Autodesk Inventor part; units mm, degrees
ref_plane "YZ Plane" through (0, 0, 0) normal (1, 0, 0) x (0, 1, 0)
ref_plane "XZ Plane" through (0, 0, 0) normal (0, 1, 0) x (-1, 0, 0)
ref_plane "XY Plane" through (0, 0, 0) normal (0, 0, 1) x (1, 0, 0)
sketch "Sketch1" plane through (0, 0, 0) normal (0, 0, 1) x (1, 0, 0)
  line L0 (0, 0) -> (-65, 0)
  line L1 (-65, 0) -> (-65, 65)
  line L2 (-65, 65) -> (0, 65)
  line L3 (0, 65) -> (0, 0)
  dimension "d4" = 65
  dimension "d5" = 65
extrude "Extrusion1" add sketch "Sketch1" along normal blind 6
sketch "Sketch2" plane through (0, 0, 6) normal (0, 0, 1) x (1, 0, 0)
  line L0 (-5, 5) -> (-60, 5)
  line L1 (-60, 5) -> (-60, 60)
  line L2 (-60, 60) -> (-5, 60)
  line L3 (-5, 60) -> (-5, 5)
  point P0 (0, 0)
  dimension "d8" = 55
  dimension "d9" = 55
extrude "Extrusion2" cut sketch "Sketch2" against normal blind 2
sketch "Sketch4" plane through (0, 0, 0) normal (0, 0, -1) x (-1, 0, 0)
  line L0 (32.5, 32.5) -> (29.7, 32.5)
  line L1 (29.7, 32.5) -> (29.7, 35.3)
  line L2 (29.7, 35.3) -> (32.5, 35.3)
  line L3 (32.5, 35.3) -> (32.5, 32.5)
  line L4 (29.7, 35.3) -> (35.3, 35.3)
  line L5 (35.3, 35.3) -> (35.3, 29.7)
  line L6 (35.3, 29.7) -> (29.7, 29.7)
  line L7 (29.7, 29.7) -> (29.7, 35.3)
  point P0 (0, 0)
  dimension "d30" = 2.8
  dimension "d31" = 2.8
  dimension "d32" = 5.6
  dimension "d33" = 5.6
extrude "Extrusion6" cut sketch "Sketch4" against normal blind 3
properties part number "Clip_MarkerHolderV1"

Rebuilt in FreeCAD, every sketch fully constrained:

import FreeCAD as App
import Part
import Sketcher
Q = App.Units.Quantity

doc = App.newDocument("Part")
body = doc.addObject("PartDesign::Body", "Body")

# Sketch on XY plane
sketch1 = body.newObject("Sketcher::SketchObject", "Sketch")
sketch1.AttachmentSupport = (doc.getObject("XY_Plane"), [""])
sketch1.MapMode = "FlatFace"
sketch1.addGeometry([
    Part.LineSegment(App.Vector(-65, 0, 0), App.Vector(0, 0, 0)),
    Part.LineSegment(App.Vector(0, 0, 0), App.Vector(0, 65, 0)),
    Part.LineSegment(App.Vector(0, 65, 0), App.Vector(-65, 65, 0)),
    Part.LineSegment(App.Vector(-65, 65, 0), App.Vector(-65, 0, 0)),
], False)
sketch1.addConstraint([
    Sketcher.Constraint("Coincident", 0, 2, 1, 1),
    Sketcher.Constraint("Coincident", 1, 2, 2, 1),
    Sketcher.Constraint("Coincident", 2, 2, 3, 1),
    Sketcher.Constraint("Coincident", 3, 2, 0, 1),
    Sketcher.Constraint("Horizontal", 0),
    Sketcher.Constraint("Vertical", 1),
    Sketcher.Constraint("Horizontal", 2),
    Sketcher.Constraint("Vertical", 3),
    Sketcher.Constraint("Coincident", 0, 2, -1, 1),
    Sketcher.Constraint("Equal", 2, 1),
    Sketcher.Constraint("DistanceX", 0, 1, 0, 2, Q("65 mm")),
])
pad1 = body.newObject("PartDesign::Pad", "Pad")
pad1.Profile = sketch1
pad1.Length = 6

# Sketch on XY plane
sketch2 = body.newObject("Sketcher::SketchObject", "Sketch001")
sketch2.AttachmentSupport = (doc.getObject("XY_Plane"), [""])
sketch2.MapMode = "FlatFace"
sketch2.AttachmentOffset = App.Placement(App.Vector(0, 0, 6), App.Rotation())
sketch2.addGeometry([
    Part.LineSegment(App.Vector(-60, 5, 0), App.Vector(-5, 5, 0)),
    Part.LineSegment(App.Vector(-5, 5, 0), App.Vector(-5, 60, 0)),
    Part.LineSegment(App.Vector(-5, 60, 0), App.Vector(-60, 60, 0)),
    Part.LineSegment(App.Vector(-60, 60, 0), App.Vector(-60, 5, 0)),
], False)
sketch2.addConstraint([
    Sketcher.Constraint("Coincident", 0, 2, 1, 1),
    Sketcher.Constraint("Coincident", 1, 2, 2, 1),
    Sketcher.Constraint("Coincident", 2, 2, 3, 1),
    Sketcher.Constraint("Coincident", 3, 2, 0, 1),
    Sketcher.Constraint("Horizontal", 0),
    Sketcher.Constraint("Vertical", 1),
    Sketcher.Constraint("Horizontal", 2),
    Sketcher.Constraint("Vertical", 3),
    Sketcher.Constraint("Equal", 2, 1),
    Sketcher.Constraint("DistanceX", 0, 1, 0, 2, Q("55 mm")),
    Sketcher.Constraint("DistanceX", 0, 2, -1, 1, Q("5 mm")),
    Sketcher.Constraint("DistanceY", -1, 1, 0, 2, Q("5 mm")),
])
pocket1 = body.newObject("PartDesign::Pocket", "Pocket")
pocket1.Profile = sketch2
pocket1.Length = 2

# Sketch on XY plane
sketch3 = body.newObject("Sketcher::SketchObject", "Sketch002")
sketch3.AttachmentSupport = (doc.getObject("XY_Plane"), [""])
sketch3.MapMode = "FlatFace"
sketch3.addGeometry([
    Part.LineSegment(App.Vector(-35, 35, 0), App.Vector(-30, 35, 0)),
    Part.LineSegment(App.Vector(-30, 35, 0), App.Vector(-30, 30, 0)),
    Part.LineSegment(App.Vector(-30, 30, 0), App.Vector(-35, 30, 0)),
    Part.LineSegment(App.Vector(-35, 30, 0), App.Vector(-35, 35, 0)),
], False)
sketch3.addConstraint([
    Sketcher.Constraint("Coincident", 0, 2, 1, 1),
    Sketcher.Constraint("Coincident", 1, 2, 2, 1),
    Sketcher.Constraint("Coincident", 2, 2, 3, 1),
    Sketcher.Constraint("Coincident", 3, 2, 0, 1),
    Sketcher.Constraint("Horizontal", 0),
    Sketcher.Constraint("Vertical", 1),
    Sketcher.Constraint("Horizontal", 2),
    Sketcher.Constraint("Vertical", 3),
    Sketcher.Constraint("Equal", 2, 1),
    Sketcher.Constraint("DistanceX", 0, 1, 0, 2, Q("5.6 mm")),
    Sketcher.Constraint("DistanceX", 0, 2, -1, 1, Q("29.7 mm")),
    Sketcher.Constraint("DistanceY", -1, 1, 0, 2, Q("35.3 mm")),
])
pocket2 = body.newObject("PartDesign::Pocket", "Pocket001")
pocket2.Profile = sketch3
pocket2.Length = 3
pocket2.Reversed = True

doc.recompute()
